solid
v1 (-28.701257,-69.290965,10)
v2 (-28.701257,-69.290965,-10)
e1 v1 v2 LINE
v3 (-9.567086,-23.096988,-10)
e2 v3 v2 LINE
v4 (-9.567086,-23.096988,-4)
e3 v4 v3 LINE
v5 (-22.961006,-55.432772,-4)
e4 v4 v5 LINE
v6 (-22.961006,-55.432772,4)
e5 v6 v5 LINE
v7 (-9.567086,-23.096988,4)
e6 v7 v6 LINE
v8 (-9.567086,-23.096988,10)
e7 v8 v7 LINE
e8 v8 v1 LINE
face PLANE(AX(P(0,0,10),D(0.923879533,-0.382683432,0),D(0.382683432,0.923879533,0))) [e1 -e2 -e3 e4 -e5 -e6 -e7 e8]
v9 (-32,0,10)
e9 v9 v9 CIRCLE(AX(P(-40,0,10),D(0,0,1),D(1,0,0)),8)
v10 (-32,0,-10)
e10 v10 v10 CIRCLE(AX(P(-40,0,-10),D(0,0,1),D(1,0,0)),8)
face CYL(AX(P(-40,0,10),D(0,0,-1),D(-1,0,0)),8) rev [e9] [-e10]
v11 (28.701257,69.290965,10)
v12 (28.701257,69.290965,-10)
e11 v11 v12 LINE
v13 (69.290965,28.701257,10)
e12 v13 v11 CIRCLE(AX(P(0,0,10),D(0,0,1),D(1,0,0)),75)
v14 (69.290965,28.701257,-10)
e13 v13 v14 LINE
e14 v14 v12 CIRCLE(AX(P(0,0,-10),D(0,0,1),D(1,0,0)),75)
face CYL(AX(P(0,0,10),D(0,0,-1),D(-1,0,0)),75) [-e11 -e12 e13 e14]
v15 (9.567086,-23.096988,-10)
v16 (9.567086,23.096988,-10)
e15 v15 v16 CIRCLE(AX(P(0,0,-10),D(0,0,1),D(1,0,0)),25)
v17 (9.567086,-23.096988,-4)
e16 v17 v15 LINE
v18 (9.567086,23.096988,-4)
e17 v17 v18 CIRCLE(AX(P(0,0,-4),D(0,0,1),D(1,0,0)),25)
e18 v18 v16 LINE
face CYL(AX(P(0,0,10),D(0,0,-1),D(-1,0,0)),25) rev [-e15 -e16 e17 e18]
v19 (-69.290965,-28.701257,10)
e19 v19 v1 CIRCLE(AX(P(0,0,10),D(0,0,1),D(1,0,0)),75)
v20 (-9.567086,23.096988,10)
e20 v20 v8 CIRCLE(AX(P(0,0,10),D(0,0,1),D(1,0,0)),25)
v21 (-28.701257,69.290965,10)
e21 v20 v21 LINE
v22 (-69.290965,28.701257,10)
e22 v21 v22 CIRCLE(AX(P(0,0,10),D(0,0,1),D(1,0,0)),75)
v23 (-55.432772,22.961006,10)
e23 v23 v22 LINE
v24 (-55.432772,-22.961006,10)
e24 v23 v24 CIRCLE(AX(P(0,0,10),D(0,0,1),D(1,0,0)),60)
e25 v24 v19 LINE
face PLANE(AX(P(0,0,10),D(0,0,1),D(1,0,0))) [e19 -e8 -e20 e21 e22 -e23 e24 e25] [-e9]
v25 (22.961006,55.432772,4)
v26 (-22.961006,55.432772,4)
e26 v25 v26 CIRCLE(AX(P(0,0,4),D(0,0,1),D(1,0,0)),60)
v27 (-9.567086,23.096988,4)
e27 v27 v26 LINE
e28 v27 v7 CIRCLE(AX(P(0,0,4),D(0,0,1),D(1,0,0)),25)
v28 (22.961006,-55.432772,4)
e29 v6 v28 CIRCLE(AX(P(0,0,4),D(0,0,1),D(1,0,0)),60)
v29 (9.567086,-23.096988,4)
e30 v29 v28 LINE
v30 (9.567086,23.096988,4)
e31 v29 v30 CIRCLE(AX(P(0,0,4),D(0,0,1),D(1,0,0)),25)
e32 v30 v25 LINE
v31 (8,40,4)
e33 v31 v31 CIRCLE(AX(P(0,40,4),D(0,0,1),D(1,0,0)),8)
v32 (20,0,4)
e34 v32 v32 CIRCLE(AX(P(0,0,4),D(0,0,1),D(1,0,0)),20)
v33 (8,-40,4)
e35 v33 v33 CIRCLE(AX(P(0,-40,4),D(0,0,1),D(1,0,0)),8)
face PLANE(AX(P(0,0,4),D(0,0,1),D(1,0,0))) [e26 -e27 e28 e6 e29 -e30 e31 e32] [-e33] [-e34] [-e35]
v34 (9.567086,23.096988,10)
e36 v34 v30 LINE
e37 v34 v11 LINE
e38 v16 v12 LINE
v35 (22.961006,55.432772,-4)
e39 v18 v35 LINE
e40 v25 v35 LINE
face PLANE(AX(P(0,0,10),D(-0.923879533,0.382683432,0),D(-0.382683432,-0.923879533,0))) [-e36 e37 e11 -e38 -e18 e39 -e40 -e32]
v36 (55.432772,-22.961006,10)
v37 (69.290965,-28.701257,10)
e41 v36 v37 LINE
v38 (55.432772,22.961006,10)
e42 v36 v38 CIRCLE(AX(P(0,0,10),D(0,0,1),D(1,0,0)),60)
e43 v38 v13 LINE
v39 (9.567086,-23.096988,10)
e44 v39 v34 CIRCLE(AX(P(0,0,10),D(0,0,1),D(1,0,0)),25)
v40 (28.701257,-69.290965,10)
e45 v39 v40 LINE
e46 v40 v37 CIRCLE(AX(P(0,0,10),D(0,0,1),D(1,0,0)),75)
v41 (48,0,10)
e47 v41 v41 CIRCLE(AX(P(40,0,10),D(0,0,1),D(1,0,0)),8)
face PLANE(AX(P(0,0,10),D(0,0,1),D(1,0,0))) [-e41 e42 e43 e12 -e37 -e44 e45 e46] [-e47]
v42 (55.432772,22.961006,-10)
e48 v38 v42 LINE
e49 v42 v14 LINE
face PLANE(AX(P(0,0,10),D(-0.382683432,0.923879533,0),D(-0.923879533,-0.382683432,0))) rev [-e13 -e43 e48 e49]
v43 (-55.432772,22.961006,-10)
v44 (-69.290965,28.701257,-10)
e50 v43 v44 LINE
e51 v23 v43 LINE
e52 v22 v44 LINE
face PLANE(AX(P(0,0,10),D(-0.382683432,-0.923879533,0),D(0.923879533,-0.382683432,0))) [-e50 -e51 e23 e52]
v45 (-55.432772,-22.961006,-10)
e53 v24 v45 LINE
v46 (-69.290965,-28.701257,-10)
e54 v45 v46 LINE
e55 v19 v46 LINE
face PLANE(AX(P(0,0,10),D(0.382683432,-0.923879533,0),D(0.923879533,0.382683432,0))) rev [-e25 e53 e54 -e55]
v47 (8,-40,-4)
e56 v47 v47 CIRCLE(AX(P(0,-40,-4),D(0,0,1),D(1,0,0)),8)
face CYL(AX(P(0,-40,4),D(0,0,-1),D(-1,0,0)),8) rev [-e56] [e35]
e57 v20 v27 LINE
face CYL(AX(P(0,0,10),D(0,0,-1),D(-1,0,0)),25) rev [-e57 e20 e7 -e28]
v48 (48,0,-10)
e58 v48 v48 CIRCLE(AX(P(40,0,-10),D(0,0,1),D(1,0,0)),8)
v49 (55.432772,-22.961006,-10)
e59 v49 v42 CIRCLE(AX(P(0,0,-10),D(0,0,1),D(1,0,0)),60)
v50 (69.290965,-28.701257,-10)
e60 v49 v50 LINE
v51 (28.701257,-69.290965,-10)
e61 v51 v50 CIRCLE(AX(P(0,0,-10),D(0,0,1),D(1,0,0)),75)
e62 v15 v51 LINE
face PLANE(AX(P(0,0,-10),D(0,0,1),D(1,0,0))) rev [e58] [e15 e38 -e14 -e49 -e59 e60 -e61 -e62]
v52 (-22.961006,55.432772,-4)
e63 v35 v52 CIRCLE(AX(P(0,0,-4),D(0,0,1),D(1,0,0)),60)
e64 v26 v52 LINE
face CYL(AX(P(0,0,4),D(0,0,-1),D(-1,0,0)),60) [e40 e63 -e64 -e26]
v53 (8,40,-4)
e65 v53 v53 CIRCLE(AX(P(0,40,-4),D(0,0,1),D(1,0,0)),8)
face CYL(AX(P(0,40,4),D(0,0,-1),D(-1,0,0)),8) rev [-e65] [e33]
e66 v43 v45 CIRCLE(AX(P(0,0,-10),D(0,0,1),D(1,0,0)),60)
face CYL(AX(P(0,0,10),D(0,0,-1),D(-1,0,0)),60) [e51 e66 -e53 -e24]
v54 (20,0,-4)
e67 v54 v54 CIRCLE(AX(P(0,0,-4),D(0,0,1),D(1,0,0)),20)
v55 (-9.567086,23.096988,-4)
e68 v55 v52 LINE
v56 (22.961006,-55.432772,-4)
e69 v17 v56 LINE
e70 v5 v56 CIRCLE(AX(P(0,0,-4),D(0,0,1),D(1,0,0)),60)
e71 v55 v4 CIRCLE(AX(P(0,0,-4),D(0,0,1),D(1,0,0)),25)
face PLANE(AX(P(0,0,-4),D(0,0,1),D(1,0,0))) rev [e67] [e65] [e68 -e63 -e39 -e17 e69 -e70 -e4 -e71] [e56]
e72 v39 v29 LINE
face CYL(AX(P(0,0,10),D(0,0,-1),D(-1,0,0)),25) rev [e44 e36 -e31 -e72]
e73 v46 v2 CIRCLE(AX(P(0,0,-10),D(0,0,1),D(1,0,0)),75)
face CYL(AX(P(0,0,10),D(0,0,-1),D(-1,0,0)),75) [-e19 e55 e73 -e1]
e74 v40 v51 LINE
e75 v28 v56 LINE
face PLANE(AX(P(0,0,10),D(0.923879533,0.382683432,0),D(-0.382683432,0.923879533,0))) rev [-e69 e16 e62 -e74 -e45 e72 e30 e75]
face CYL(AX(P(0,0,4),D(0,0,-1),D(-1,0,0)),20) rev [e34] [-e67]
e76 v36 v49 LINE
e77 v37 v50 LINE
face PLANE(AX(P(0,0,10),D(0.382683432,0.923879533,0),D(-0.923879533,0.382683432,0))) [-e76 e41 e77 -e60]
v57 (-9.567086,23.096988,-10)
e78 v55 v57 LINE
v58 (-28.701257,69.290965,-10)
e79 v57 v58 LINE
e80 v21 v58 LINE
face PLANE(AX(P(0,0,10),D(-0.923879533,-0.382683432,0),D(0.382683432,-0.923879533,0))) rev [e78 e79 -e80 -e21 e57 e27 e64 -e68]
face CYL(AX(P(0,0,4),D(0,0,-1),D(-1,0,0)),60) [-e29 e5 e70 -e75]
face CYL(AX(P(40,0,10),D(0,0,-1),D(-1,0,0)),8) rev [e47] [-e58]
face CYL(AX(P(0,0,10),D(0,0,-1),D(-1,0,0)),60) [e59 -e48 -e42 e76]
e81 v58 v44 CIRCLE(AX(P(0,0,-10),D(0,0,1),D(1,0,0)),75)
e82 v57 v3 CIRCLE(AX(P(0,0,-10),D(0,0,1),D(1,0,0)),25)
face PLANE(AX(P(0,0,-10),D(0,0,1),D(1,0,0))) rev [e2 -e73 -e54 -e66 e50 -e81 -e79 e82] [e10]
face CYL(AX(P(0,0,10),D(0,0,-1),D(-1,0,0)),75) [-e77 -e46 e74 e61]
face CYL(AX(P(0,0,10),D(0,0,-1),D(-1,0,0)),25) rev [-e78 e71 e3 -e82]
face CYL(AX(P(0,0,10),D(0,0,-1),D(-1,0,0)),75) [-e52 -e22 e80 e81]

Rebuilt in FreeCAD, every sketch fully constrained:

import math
import FreeCAD as App
import Part
import Sketcher
Q = App.Units.Quantity

doc = App.newDocument("Part")
body = doc.addObject("PartDesign::Body", "Body")
body.AllowCompound = True

sketch1 = body.newObject("Sketcher::SketchObject", "Sketch")
sketch1.AttachmentSupport = (doc.getObject("XY_Plane"), [""])
sketch1.MapMode = "FlatFace"
sketch1.addGeometry(Part.LineSegment(App.Vector(29, 69, 0), App.Vector(23, 55, 0)), False)
sketch1.addGeometry(Part.LineSegment(App.Vector(23, 55, 0), App.Vector(10, 23, 0)), False)
sketch1.addGeometry(Part.ArcOfCircle(Part.Circle(App.Vector(0, 0, 0), App.Vector(0, 0, 1), 25), math.radians(22), math.radians(68)), False)
sketch1.addGeometry(Part.ArcOfCircle(Part.Circle(App.Vector(0, 0, 0), App.Vector(0, 0, 1), 25), math.radians(0), math.radians(22)), False)
sketch1.addGeometry(Part.ArcOfCircle(Part.Circle(App.Vector(0, 0, 0), App.Vector(0, 0, 1), 25), math.radians(-22), math.radians(0)), False)
sketch1.addGeometry(Part.ArcOfCircle(Part.Circle(App.Vector(0, 0, 0), App.Vector(0, 0, 1), 25), math.radians(-68), math.radians(-22)), False)
sketch1.addGeometry(Part.LineSegment(App.Vector(10, -23, 0), App.Vector(23, -55, 0)), False)
sketch1.addGeometry(Part.LineSegment(App.Vector(23, -55, 0), App.Vector(29, -69, 0)), False)
sketch1.addGeometry(Part.ArcOfCircle(Part.Circle(App.Vector(0, 0, 0), App.Vector(0, 0, 1), 75), math.radians(-68), math.radians(-22)), False)
sketch1.addGeometry(Part.LineSegment(App.Vector(69, -29, 0), App.Vector(55, -23, 0)), False)
sketch1.addGeometry(Part.ArcOfCircle(Part.Circle(App.Vector(0, 0, 0), App.Vector(0, 0, 1), 60), math.radians(-22), math.radians(0)), False)
sketch1.addGeometry(Part.ArcOfCircle(Part.Circle(App.Vector(0, 0, 0), App.Vector(0, 0, 1), 60), math.radians(0), math.radians(22)), False)
sketch1.addGeometry(Part.LineSegment(App.Vector(55, 23, 0), App.Vector(69, 29, 0)), False)
sketch1.addGeometry(Part.ArcOfCircle(Part.Circle(App.Vector(0, 0, 0), App.Vector(0, 0, 1), 75), math.radians(22), math.radians(68)), False)
sketch1.addGeometry(Part.Circle(App.Vector(40, 0, 0), App.Vector(0, 0, 1), 8), False)
sketch1.addGeometry(Part.LineSegment(App.Vector(-23, 55, 0), App.Vector(-29, 69, 0)), False)
sketch1.addGeometry(Part.ArcOfCircle(Part.Circle(App.Vector(0, 0, 0), App.Vector(0, 0, 1), 75), math.radians(112), math.radians(158)), False)
sketch1.addGeometry(Part.LineSegment(App.Vector(-69, 29, 0), App.Vector(-55, 23, 0)), False)
sketch1.addGeometry(Part.ArcOfCircle(Part.Circle(App.Vector(0, 0, 0), App.Vector(0, 0, 1), 60), math.radians(158), math.radians(202)), False)
sketch1.addGeometry(Part.LineSegment(App.Vector(-55, -23, 0), App.Vector(-69, -29, 0)), False)
sketch1.addGeometry(Part.ArcOfCircle(Part.Circle(App.Vector(0, 0, 0), App.Vector(0, 0, 1), 75), math.radians(-158), math.radians(-112)), False)
sketch1.addGeometry(Part.LineSegment(App.Vector(-29, -69, 0), App.Vector(-23, -55, 0)), False)
sketch1.addGeometry(Part.LineSegment(App.Vector(-23, -55, 0), App.Vector(-10, -23, 0)), False)
sketch1.addGeometry(Part.ArcOfCircle(Part.Circle(App.Vector(0, 0, 0), App.Vector(0, 0, 1), 25), math.radians(-158), math.radians(-112)), False)
sketch1.addGeometry(Part.ArcOfCircle(Part.Circle(App.Vector(0, 0, 0), App.Vector(0, 0, 1), 25), math.radians(158), math.radians(202)), False)
sketch1.addGeometry(Part.ArcOfCircle(Part.Circle(App.Vector(0, 0, 0), App.Vector(0, 0, 1), 25), math.radians(112), math.radians(158)), False)
sketch1.addGeometry(Part.LineSegment(App.Vector(-10, 23, 0), App.Vector(-23, 55, 0)), False)
sketch1.addGeometry(Part.Circle(App.Vector(-40, 0, 0), App.Vector(0, 0, 1), 8), False)
sketch1.addConstraint(Sketcher.Constraint("Coincident", 0, 2, 1, 1))
sketch1.addConstraint(Sketcher.Constraint("Coincident", 1, 2, 2, 2))
sketch1.addConstraint(Sketcher.Constraint("Tangent", 2, 1, 3, 2))
sketch1.addConstraint(Sketcher.Constraint("Tangent", 3, 1, 4, 2))
sketch1.addConstraint(Sketcher.Constraint("Tangent", 4, 1, 5, 2))
sketch1.addConstraint(Sketcher.Constraint("Coincident", 5, 1, 6, 1))
sketch1.addConstraint(Sketcher.Constraint("Coincident", 6, 2, 7, 1))
sketch1.addConstraint(Sketcher.Constraint("Coincident", 7, 2, 8, 1))
sketch1.addConstraint(Sketcher.Constraint("Coincident", 8, 2, 9, 1))
sketch1.addConstraint(Sketcher.Constraint("Coincident", 9, 2, 10, 1))
sketch1.addConstraint(Sketcher.Constraint("Tangent", 10, 2, 11, 1))
sketch1.addConstraint(Sketcher.Constraint("Coincident", 11, 2, 12, 1))
sketch1.addConstraint(Sketcher.Constraint("Coincident", 12, 2, 13, 1))
sketch1.addConstraint(Sketcher.Constraint("Coincident", 13, 2, 0, 1))
sketch1.addConstraint(Sketcher.Constraint("Coincident", 15, 2, 16, 1))
sketch1.addConstraint(Sketcher.Constraint("Coincident", 16, 2, 17, 1))
sketch1.addConstraint(Sketcher.Constraint("Coincident", 17, 2, 18, 1))
sketch1.addConstraint(Sketcher.Constraint("Coincident", 18, 2, 19, 1))
sketch1.addConstraint(Sketcher.Constraint("Coincident", 19, 2, 20, 1))
sketch1.addConstraint(Sketcher.Constraint("Coincident", 20, 2, 21, 1))
sketch1.addConstraint(Sketcher.Constraint("Coincident", 21, 2, 22, 1))
sketch1.addConstraint(Sketcher.Constraint("Coincident", 22, 2, 23, 2))
sketch1.addConstraint(Sketcher.Constraint("Tangent", 23, 1, 24, 2))
sketch1.addConstraint(Sketcher.Constraint("Tangent", 24, 1, 25, 2))
sketch1.addConstraint(Sketcher.Constraint("Coincident", 25, 1, 26, 1))
sketch1.addConstraint(Sketcher.Constraint("Coincident", 26, 2, 15, 1))
sketch1.addConstraint(Sketcher.Constraint("Coincident", 2, 3, -1, 1))
sketch1.addConstraint(Sketcher.Constraint("Coincident", 4, 3, -1, 1))
sketch1.addConstraint(Sketcher.Constraint("Coincident", 8, 3, -1, 1))
sketch1.addConstraint(Sketcher.Constraint("Coincident", 10, 3, -1, 1))
sketch1.addConstraint(Sketcher.Constraint("Coincident", 13, 3, -1, 1))
sketch1.addConstraint(Sketcher.Constraint("Coincident", 16, 3, -1, 1))
sketch1.addConstraint(Sketcher.Constraint("Coincident", 18, 3, -1, 1))
sketch1.addConstraint(Sketcher.Constraint("Coincident", 20, 3, -1, 1))
sketch1.addConstraint(Sketcher.Constraint("Coincident", 23, 3, -1, 1))
sketch1.addConstraint(Sketcher.Constraint("Coincident", 25, 3, -1, 1))
sketch1.addConstraint(Sketcher.Constraint("Equal", 4, 5))
sketch1.addConstraint(Sketcher.Constraint("Equal", 10, 11))
sketch1.addConstraint(Sketcher.Constraint("Equal", 8, 13))
sketch1.addConstraint(Sketcher.Constraint("Equal", 13, 16))
sketch1.addConstraint(Sketcher.Constraint("Equal", 11, 18))
sketch1.addConstraint(Sketcher.Constraint("Equal", 16, 20))
sketch1.addConstraint(Sketcher.Constraint("Equal", 5, 23))
sketch1.addConstraint(Sketcher.Constraint("Equal", 14, 27))
sketch1.addConstraint(Sketcher.Constraint("Symmetric", 14, 3, 27, 3, -1, 1))
sketch1.addConstraint(Sketcher.Constraint("Symmetric", 0, 2, 21, 2, -1, 1))
sketch1.addConstraint(Sketcher.Constraint("Symmetric", 6, 2, 26, 2, -1, 1))
sketch1.addConstraint(Sketcher.Constraint("Symmetric", 6, 2, 21, 2, -2))
sketch1.addConstraint(Sketcher.Constraint("PointOnObject", 14, 3, -1))
sketch1.addConstraint(Sketcher.Constraint("PointOnObject", 3, 1, -1))
sketch1.addConstraint(Sketcher.Constraint("PointOnObject", 10, 2, -1))
sketch1.addConstraint(Sketcher.Constraint("Parallel", 0, 1))
sketch1.addConstraint(Sketcher.Constraint("Parallel", 6, 7))
sketch1.addConstraint(Sketcher.Constraint("Perpendicular", 1, 9))
sketch1.addConstraint(Sketcher.Constraint("Perpendicular", 7, 12))
sketch1.addConstraint(Sketcher.Constraint("Perpendicular", 12, 15))
sketch1.addConstraint(Sketcher.Constraint("Parallel", 9, 17))
sketch1.addConstraint(Sketcher.Constraint("Perpendicular", 15, 19))
sketch1.addConstraint(Sketcher.Constraint("Perpendicular", 17, 21))
sketch1.addConstraint(Sketcher.Constraint("Parallel", 21, 22))
sketch1.addConstraint(Sketcher.Constraint("Perpendicular", 19, 26))
sketch1.addConstraint(Sketcher.Constraint("Horizontal", 13, 2, 15, 2))
sketch1.addConstraint(Sketcher.Constraint("Horizontal", 12, 2, 16, 2))
sketch1.addConstraint(Sketcher.Constraint("Horizontal", 9, 2, 18, 2))
sketch1.addConstraint(Sketcher.Constraint("Horizontal", 4, 1, 23, 1))
sketch1.addConstraint(Sketcher.Constraint("Horizontal", 2, 1, 24, 1))
sketch1.addConstraint(Sketcher.Constraint("Vertical", 2, 1, 4, 1))
sketch1.addConstraint(Sketcher.Constraint("Vertical", 9, 2, 11, 2))
sketch1.addConstraint(Sketcher.Constraint("Equal", 7, 9))
sketch1.addConstraint(Sketcher.Constraint("Diameter", 14, Q("16 mm")))
sketch1.addConstraint(Sketcher.Constraint("Radius", 2, Q("25 mm")))
sketch1.addConstraint(Sketcher.Constraint("Radius", 8, Q("75 mm")))
sketch1.addConstraint(Sketcher.Constraint("Radius", 10, Q("60 mm")))
sketch1.addConstraint(Sketcher.Constraint("DistanceX", -1, 1, 14, 3, Q("40 mm")))
sketch1.addConstraint(Sketcher.Constraint("Angle", 0, Q("-112.5 deg")))
sketch1.addConstraint(Sketcher.Constraint("DistanceY", -1, 1, 0, 2, Q("55.432772 mm")))
sketch1.addConstraint(Sketcher.Constraint("DistanceX", -1, 1, 2, 1, Q("23.096988 mm")))
sketch1.addConstraint(Sketcher.Constraint("DistanceX", -1, 1, 9, 2, Q("55.432772 mm")))
pad1 = body.newObject("PartDesign::Pad", "Pad")
pad1.Profile = sketch1
pad1.Length = 20
pad1.Midplane = True

sketch2 = body.newObject("Sketcher::SketchObject", "Sketch001")
sketch2.AttachmentSupport = (doc.getObject("XY_Plane"), [""])
sketch2.MapMode = "FlatFace"
sketch2.addGeometry(Part.LineSegment(App.Vector(-23, 55, 0), App.Vector(-10, 23, 0)), False)
sketch2.addGeometry(Part.ArcOfCircle(Part.Circle(App.Vector(0, 0, 0), App.Vector(0, 0, 1), 25), math.radians(112), math.radians(158)), False)
sketch2.addGeometry(Part.ArcOfCircle(Part.Circle(App.Vector(0, 0, 0), App.Vector(0, 0, 1), 25), math.radians(158), math.radians(202)), False)
sketch2.addGeometry(Part.ArcOfCircle(Part.Circle(App.Vector(0, 0, 0), App.Vector(0, 0, 1), 25), math.radians(-158), math.radians(-112)), False)
sketch2.addGeometry(Part.LineSegment(App.Vector(-10, -23, 0), App.Vector(-23, -55, 0)), False)
sketch2.addGeometry(Part.ArcOfCircle(Part.Circle(App.Vector(0, 0, 0), App.Vector(0, 0, 1), 60), math.radians(-112), math.radians(-68)), False)
sketch2.addGeometry(Part.LineSegment(App.Vector(23, -55, 0), App.Vector(10, -23, 0)), False)
sketch2.addGeometry(Part.ArcOfCircle(Part.Circle(App.Vector(0, 0, 0), App.Vector(0, 0, 1), 25), math.radians(-68), math.radians(-22)), False)
sketch2.addGeometry(Part.ArcOfCircle(Part.Circle(App.Vector(0, 0, 0), App.Vector(0, 0, 1), 25), math.radians(-22), math.radians(0)), False)
sketch2.addGeometry(Part.ArcOfCircle(Part.Circle(App.Vector(0, 0, 0), App.Vector(0, 0, 1), 25), math.radians(0), math.radians(22)), False)
sketch2.addGeometry(Part.ArcOfCircle(Part.Circle(App.Vector(0, 0, 0), App.Vector(0, 0, 1), 25), math.radians(22), math.radians(68)), False)
sketch2.addGeometry(Part.LineSegment(App.Vector(10, 23, 0), App.Vector(23, 55, 0)), False)
sketch2.addGeometry(Part.ArcOfCircle(Part.Circle(App.Vector(0, 0, 0), App.Vector(0, 0, 1), 60), math.radians(68), math.radians(112)), False)
sketch2.addGeometry(Part.Circle(App.Vector(0, 40, 0), App.Vector(0, 0, 1), 8), False)
sketch2.addGeometry(Part.ArcOfCircle(Part.Circle(App.Vector(0, 0, 0), App.Vector(0, 0, 1), 20), math.radians(67), math.radians(113)), False)
sketch2.addGeometry(Part.ArcOfCircle(Part.Circle(App.Vector(0, 0, 0), App.Vector(0, 0, 1), 20), math.radians(22), math.radians(68)), False)
sketch2.addGeometry(Part.ArcOfCircle(Part.Circle(App.Vector(0, 0, 0), App.Vector(0, 0, 1), 20), math.radians(0), math.radians(23)), False)
sketch2.addGeometry(Part.ArcOfCircle(Part.Circle(App.Vector(0, 0, 0), App.Vector(0, 0, 1), 20), math.radians(-23), math.radians(0)), False)
sketch2.addGeometry(Part.ArcOfCircle(Part.Circle(App.Vector(0, 0, 0), App.Vector(0, 0, 1), 20), math.radians(-68), math.radians(-22)), False)
sketch2.addGeometry(Part.ArcOfCircle(Part.Circle(App.Vector(0, 0, 0), App.Vector(0, 0, 1), 20), math.radians(-113), math.radians(-67)), False)
sketch2.addGeometry(Part.ArcOfCircle(Part.Circle(App.Vector(0, 0, 0), App.Vector(0, 0, 1), 20), math.radians(-158), math.radians(-112)), False)
sketch2.addGeometry(Part.ArcOfCircle(Part.Circle(App.Vector(0, 0, 0), App.Vector(0, 0, 1), 20), math.radians(157), math.radians(203)), False)
sketch2.addGeometry(Part.ArcOfCircle(Part.Circle(App.Vector(0, 0, 0), App.Vector(0, 0, 1), 20), math.radians(112), math.radians(158)), False)
sketch2.addGeometry(Part.Circle(App.Vector(0, -40, 0), App.Vector(0, 0, 1), 8), False)
sketch2.addConstraint(Sketcher.Constraint("Coincident", 0, 2, 1, 1))
sketch2.addConstraint(Sketcher.Constraint("Tangent", 1, 2, 2, 1))
sketch2.addConstraint(Sketcher.Constraint("Tangent", 2, 2, 3, 1))
sketch2.addConstraint(Sketcher.Constraint("Coincident", 3, 2, 4, 1))
sketch2.addConstraint(Sketcher.Constraint("Coincident", 4, 2, 5, 1))
sketch2.addConstraint(Sketcher.Constraint("Coincident", 5, 2, 6, 1))
sketch2.addConstraint(Sketcher.Constraint("Coincident", 6, 2, 7, 1))
sketch2.addConstraint(Sketcher.Constraint("Tangent", 7, 2, 8, 1))
sketch2.addConstraint(Sketcher.Constraint("Tangent", 8, 2, 9, 1))
sketch2.addConstraint(Sketcher.Constraint("Tangent", 9, 2, 10, 1))
sketch2.addConstraint(Sketcher.Constraint("Coincident", 10, 2, 11, 1))
sketch2.addConstraint(Sketcher.Constraint("Coincident", 11, 2, 12, 1))
sketch2.addConstraint(Sketcher.Constraint("Coincident", 12, 2, 0, 1))
sketch2.addConstraint(Sketcher.Constraint("Tangent", 14, 1, 15, 2))
sketch2.addConstraint(Sketcher.Constraint("Tangent", 15, 1, 16, 2))
sketch2.addConstraint(Sketcher.Constraint("Tangent", 16, 1, 17, 2))
sketch2.addConstraint(Sketcher.Constraint("Tangent", 17, 1, 18, 2))
sketch2.addConstraint(Sketcher.Constraint("Tangent", 18, 1, 19, 2))
sketch2.addConstraint(Sketcher.Constraint("Tangent", 19, 1, 20, 2))
sketch2.addConstraint(Sketcher.Constraint("Tangent", 20, 1, 21, 2))
sketch2.addConstraint(Sketcher.Constraint("Tangent", 21, 1, 22, 2))
sketch2.addConstraint(Sketcher.Constraint("Tangent", 22, 1, 14, 2))
sketch2.addConstraint(Sketcher.Constraint("Coincident", 1, 3, -1, 1))
sketch2.addConstraint(Sketcher.Constraint("Coincident", 3, 3, -1, 1))
sketch2.addConstraint(Sketcher.Constraint("Coincident", 5, 3, -1, 1))
sketch2.addConstraint(Sketcher.Constraint("Coincident", 7, 3, -1, 1))
sketch2.addConstraint(Sketcher.Constraint("Coincident", 9, 3, -1, 1))
sketch2.addConstraint(Sketcher.Constraint("Coincident", 12, 3, -1, 1))
sketch2.addConstraint(Sketcher.Constraint("Coincident", 14, 3, -1, 1))
sketch2.addConstraint(Sketcher.Constraint("Coincident", 16, 3, -1, 1))
sketch2.addConstraint(Sketcher.Constraint("Coincident", 18, 3, -1, 1))
sketch2.addConstraint(Sketcher.Constraint("Coincident", 20, 3, -1, 1))
sketch2.addConstraint(Sketcher.Constraint("Equal", 3, 7))
sketch2.addConstraint(Sketcher.Constraint("Equal", 9, 10))
sketch2.addConstraint(Sketcher.Constraint("Equal", 5, 12))
sketch2.addConstraint(Sketcher.Constraint("Equal", 13, 23))
sketch2.addConstraint(Sketcher.Constraint("Symmetric", 13, 3, 23, 3, -1, 1))
sketch2.addConstraint(Sketcher.Constraint("PointOnObject", 13, 3, -2))
sketch2.addConstraint(Sketcher.Constraint("PointOnObject", 8, 2, -1))
sketch2.addConstraint(Sketcher.Constraint("PointOnObject", 16, 1, -1))
sketch2.addConstraint(Sketcher.Constraint("Parallel", 0, 6))
sketch2.addConstraint(Sketcher.Constraint("Parallel", 4, 11))
sketch2.addConstraint(Sketcher.Constraint("Horizontal", 4, 2, 5, 2))
sketch2.addConstraint(Sketcher.Constraint("Horizontal", 3, 2, 6, 2))
sketch2.addConstraint(Sketcher.Constraint("Horizontal", 2, 2, 7, 2))
sketch2.addConstraint(Sketcher.Constraint("Horizontal", 1, 2, 9, 2))
sketch2.addConstraint(Sketcher.Constraint("Horizontal", 0, 2, 10, 2))
sketch2.addConstraint(Sketcher.Constraint("Horizontal", 18, 1, 19, 1))
sketch2.addConstraint(Sketcher.Constraint("Horizontal", 17, 1, 20, 1))
sketch2.addConstraint(Sketcher.Constraint("Horizontal", 15, 1, 21, 1))
sketch2.addConstraint(Sketcher.Constraint("Horizontal", 14, 1, 22, 1))
sketch2.addConstraint(Sketcher.Constraint("Vertical", 1, 2, 2, 2))
sketch2.addConstraint(Sketcher.Constraint("Vertical", 0, 2, 3, 2))
sketch2.addConstraint(Sketcher.Constraint("Vertical", 15, 1, 17, 1))
sketch2.addConstraint(Sketcher.Constraint("Vertical", 14, 1, 18, 1))
sketch2.addConstraint(Sketcher.Constraint("Diameter", 13, Q("16 mm")))
sketch2.addConstraint(Sketcher.Constraint("Radius", 1, Q("25 mm")))
sketch2.addConstraint(Sketcher.Constraint("Radius", 5, Q("60 mm")))
sketch2.addConstraint(Sketcher.Constraint("Radius", 14, Q("20 mm")))
sketch2.addConstraint(Sketcher.Constraint("DistanceY", -1, 1, 13, 3, Q("40 mm")))
sketch2.addConstraint(Sketcher.Constraint("Angle", 0, Q("-67.5 deg")))
sketch2.addConstraint(Sketcher.Constraint("DistanceY", -1, 1, 0, 2, Q("23.096988 mm")))
sketch2.addConstraint(Sketcher.Constraint("DistanceX", 1, 2, -1, 1, Q("23.096988 mm")))
sketch2.addConstraint(Sketcher.Constraint("DistanceX", -1, 1, 14, 1, Q("7.653669 mm")))
sketch2.addConstraint(Sketcher.Constraint("DistanceX", -1, 1, 15, 1, Q("18.477591 mm")))
pad2 = body.newObject("PartDesign::Pad", "Pad001")
pad2.Profile = sketch2
pad2.Length = 8
pad2.Midplane = True

doc.recompute()
